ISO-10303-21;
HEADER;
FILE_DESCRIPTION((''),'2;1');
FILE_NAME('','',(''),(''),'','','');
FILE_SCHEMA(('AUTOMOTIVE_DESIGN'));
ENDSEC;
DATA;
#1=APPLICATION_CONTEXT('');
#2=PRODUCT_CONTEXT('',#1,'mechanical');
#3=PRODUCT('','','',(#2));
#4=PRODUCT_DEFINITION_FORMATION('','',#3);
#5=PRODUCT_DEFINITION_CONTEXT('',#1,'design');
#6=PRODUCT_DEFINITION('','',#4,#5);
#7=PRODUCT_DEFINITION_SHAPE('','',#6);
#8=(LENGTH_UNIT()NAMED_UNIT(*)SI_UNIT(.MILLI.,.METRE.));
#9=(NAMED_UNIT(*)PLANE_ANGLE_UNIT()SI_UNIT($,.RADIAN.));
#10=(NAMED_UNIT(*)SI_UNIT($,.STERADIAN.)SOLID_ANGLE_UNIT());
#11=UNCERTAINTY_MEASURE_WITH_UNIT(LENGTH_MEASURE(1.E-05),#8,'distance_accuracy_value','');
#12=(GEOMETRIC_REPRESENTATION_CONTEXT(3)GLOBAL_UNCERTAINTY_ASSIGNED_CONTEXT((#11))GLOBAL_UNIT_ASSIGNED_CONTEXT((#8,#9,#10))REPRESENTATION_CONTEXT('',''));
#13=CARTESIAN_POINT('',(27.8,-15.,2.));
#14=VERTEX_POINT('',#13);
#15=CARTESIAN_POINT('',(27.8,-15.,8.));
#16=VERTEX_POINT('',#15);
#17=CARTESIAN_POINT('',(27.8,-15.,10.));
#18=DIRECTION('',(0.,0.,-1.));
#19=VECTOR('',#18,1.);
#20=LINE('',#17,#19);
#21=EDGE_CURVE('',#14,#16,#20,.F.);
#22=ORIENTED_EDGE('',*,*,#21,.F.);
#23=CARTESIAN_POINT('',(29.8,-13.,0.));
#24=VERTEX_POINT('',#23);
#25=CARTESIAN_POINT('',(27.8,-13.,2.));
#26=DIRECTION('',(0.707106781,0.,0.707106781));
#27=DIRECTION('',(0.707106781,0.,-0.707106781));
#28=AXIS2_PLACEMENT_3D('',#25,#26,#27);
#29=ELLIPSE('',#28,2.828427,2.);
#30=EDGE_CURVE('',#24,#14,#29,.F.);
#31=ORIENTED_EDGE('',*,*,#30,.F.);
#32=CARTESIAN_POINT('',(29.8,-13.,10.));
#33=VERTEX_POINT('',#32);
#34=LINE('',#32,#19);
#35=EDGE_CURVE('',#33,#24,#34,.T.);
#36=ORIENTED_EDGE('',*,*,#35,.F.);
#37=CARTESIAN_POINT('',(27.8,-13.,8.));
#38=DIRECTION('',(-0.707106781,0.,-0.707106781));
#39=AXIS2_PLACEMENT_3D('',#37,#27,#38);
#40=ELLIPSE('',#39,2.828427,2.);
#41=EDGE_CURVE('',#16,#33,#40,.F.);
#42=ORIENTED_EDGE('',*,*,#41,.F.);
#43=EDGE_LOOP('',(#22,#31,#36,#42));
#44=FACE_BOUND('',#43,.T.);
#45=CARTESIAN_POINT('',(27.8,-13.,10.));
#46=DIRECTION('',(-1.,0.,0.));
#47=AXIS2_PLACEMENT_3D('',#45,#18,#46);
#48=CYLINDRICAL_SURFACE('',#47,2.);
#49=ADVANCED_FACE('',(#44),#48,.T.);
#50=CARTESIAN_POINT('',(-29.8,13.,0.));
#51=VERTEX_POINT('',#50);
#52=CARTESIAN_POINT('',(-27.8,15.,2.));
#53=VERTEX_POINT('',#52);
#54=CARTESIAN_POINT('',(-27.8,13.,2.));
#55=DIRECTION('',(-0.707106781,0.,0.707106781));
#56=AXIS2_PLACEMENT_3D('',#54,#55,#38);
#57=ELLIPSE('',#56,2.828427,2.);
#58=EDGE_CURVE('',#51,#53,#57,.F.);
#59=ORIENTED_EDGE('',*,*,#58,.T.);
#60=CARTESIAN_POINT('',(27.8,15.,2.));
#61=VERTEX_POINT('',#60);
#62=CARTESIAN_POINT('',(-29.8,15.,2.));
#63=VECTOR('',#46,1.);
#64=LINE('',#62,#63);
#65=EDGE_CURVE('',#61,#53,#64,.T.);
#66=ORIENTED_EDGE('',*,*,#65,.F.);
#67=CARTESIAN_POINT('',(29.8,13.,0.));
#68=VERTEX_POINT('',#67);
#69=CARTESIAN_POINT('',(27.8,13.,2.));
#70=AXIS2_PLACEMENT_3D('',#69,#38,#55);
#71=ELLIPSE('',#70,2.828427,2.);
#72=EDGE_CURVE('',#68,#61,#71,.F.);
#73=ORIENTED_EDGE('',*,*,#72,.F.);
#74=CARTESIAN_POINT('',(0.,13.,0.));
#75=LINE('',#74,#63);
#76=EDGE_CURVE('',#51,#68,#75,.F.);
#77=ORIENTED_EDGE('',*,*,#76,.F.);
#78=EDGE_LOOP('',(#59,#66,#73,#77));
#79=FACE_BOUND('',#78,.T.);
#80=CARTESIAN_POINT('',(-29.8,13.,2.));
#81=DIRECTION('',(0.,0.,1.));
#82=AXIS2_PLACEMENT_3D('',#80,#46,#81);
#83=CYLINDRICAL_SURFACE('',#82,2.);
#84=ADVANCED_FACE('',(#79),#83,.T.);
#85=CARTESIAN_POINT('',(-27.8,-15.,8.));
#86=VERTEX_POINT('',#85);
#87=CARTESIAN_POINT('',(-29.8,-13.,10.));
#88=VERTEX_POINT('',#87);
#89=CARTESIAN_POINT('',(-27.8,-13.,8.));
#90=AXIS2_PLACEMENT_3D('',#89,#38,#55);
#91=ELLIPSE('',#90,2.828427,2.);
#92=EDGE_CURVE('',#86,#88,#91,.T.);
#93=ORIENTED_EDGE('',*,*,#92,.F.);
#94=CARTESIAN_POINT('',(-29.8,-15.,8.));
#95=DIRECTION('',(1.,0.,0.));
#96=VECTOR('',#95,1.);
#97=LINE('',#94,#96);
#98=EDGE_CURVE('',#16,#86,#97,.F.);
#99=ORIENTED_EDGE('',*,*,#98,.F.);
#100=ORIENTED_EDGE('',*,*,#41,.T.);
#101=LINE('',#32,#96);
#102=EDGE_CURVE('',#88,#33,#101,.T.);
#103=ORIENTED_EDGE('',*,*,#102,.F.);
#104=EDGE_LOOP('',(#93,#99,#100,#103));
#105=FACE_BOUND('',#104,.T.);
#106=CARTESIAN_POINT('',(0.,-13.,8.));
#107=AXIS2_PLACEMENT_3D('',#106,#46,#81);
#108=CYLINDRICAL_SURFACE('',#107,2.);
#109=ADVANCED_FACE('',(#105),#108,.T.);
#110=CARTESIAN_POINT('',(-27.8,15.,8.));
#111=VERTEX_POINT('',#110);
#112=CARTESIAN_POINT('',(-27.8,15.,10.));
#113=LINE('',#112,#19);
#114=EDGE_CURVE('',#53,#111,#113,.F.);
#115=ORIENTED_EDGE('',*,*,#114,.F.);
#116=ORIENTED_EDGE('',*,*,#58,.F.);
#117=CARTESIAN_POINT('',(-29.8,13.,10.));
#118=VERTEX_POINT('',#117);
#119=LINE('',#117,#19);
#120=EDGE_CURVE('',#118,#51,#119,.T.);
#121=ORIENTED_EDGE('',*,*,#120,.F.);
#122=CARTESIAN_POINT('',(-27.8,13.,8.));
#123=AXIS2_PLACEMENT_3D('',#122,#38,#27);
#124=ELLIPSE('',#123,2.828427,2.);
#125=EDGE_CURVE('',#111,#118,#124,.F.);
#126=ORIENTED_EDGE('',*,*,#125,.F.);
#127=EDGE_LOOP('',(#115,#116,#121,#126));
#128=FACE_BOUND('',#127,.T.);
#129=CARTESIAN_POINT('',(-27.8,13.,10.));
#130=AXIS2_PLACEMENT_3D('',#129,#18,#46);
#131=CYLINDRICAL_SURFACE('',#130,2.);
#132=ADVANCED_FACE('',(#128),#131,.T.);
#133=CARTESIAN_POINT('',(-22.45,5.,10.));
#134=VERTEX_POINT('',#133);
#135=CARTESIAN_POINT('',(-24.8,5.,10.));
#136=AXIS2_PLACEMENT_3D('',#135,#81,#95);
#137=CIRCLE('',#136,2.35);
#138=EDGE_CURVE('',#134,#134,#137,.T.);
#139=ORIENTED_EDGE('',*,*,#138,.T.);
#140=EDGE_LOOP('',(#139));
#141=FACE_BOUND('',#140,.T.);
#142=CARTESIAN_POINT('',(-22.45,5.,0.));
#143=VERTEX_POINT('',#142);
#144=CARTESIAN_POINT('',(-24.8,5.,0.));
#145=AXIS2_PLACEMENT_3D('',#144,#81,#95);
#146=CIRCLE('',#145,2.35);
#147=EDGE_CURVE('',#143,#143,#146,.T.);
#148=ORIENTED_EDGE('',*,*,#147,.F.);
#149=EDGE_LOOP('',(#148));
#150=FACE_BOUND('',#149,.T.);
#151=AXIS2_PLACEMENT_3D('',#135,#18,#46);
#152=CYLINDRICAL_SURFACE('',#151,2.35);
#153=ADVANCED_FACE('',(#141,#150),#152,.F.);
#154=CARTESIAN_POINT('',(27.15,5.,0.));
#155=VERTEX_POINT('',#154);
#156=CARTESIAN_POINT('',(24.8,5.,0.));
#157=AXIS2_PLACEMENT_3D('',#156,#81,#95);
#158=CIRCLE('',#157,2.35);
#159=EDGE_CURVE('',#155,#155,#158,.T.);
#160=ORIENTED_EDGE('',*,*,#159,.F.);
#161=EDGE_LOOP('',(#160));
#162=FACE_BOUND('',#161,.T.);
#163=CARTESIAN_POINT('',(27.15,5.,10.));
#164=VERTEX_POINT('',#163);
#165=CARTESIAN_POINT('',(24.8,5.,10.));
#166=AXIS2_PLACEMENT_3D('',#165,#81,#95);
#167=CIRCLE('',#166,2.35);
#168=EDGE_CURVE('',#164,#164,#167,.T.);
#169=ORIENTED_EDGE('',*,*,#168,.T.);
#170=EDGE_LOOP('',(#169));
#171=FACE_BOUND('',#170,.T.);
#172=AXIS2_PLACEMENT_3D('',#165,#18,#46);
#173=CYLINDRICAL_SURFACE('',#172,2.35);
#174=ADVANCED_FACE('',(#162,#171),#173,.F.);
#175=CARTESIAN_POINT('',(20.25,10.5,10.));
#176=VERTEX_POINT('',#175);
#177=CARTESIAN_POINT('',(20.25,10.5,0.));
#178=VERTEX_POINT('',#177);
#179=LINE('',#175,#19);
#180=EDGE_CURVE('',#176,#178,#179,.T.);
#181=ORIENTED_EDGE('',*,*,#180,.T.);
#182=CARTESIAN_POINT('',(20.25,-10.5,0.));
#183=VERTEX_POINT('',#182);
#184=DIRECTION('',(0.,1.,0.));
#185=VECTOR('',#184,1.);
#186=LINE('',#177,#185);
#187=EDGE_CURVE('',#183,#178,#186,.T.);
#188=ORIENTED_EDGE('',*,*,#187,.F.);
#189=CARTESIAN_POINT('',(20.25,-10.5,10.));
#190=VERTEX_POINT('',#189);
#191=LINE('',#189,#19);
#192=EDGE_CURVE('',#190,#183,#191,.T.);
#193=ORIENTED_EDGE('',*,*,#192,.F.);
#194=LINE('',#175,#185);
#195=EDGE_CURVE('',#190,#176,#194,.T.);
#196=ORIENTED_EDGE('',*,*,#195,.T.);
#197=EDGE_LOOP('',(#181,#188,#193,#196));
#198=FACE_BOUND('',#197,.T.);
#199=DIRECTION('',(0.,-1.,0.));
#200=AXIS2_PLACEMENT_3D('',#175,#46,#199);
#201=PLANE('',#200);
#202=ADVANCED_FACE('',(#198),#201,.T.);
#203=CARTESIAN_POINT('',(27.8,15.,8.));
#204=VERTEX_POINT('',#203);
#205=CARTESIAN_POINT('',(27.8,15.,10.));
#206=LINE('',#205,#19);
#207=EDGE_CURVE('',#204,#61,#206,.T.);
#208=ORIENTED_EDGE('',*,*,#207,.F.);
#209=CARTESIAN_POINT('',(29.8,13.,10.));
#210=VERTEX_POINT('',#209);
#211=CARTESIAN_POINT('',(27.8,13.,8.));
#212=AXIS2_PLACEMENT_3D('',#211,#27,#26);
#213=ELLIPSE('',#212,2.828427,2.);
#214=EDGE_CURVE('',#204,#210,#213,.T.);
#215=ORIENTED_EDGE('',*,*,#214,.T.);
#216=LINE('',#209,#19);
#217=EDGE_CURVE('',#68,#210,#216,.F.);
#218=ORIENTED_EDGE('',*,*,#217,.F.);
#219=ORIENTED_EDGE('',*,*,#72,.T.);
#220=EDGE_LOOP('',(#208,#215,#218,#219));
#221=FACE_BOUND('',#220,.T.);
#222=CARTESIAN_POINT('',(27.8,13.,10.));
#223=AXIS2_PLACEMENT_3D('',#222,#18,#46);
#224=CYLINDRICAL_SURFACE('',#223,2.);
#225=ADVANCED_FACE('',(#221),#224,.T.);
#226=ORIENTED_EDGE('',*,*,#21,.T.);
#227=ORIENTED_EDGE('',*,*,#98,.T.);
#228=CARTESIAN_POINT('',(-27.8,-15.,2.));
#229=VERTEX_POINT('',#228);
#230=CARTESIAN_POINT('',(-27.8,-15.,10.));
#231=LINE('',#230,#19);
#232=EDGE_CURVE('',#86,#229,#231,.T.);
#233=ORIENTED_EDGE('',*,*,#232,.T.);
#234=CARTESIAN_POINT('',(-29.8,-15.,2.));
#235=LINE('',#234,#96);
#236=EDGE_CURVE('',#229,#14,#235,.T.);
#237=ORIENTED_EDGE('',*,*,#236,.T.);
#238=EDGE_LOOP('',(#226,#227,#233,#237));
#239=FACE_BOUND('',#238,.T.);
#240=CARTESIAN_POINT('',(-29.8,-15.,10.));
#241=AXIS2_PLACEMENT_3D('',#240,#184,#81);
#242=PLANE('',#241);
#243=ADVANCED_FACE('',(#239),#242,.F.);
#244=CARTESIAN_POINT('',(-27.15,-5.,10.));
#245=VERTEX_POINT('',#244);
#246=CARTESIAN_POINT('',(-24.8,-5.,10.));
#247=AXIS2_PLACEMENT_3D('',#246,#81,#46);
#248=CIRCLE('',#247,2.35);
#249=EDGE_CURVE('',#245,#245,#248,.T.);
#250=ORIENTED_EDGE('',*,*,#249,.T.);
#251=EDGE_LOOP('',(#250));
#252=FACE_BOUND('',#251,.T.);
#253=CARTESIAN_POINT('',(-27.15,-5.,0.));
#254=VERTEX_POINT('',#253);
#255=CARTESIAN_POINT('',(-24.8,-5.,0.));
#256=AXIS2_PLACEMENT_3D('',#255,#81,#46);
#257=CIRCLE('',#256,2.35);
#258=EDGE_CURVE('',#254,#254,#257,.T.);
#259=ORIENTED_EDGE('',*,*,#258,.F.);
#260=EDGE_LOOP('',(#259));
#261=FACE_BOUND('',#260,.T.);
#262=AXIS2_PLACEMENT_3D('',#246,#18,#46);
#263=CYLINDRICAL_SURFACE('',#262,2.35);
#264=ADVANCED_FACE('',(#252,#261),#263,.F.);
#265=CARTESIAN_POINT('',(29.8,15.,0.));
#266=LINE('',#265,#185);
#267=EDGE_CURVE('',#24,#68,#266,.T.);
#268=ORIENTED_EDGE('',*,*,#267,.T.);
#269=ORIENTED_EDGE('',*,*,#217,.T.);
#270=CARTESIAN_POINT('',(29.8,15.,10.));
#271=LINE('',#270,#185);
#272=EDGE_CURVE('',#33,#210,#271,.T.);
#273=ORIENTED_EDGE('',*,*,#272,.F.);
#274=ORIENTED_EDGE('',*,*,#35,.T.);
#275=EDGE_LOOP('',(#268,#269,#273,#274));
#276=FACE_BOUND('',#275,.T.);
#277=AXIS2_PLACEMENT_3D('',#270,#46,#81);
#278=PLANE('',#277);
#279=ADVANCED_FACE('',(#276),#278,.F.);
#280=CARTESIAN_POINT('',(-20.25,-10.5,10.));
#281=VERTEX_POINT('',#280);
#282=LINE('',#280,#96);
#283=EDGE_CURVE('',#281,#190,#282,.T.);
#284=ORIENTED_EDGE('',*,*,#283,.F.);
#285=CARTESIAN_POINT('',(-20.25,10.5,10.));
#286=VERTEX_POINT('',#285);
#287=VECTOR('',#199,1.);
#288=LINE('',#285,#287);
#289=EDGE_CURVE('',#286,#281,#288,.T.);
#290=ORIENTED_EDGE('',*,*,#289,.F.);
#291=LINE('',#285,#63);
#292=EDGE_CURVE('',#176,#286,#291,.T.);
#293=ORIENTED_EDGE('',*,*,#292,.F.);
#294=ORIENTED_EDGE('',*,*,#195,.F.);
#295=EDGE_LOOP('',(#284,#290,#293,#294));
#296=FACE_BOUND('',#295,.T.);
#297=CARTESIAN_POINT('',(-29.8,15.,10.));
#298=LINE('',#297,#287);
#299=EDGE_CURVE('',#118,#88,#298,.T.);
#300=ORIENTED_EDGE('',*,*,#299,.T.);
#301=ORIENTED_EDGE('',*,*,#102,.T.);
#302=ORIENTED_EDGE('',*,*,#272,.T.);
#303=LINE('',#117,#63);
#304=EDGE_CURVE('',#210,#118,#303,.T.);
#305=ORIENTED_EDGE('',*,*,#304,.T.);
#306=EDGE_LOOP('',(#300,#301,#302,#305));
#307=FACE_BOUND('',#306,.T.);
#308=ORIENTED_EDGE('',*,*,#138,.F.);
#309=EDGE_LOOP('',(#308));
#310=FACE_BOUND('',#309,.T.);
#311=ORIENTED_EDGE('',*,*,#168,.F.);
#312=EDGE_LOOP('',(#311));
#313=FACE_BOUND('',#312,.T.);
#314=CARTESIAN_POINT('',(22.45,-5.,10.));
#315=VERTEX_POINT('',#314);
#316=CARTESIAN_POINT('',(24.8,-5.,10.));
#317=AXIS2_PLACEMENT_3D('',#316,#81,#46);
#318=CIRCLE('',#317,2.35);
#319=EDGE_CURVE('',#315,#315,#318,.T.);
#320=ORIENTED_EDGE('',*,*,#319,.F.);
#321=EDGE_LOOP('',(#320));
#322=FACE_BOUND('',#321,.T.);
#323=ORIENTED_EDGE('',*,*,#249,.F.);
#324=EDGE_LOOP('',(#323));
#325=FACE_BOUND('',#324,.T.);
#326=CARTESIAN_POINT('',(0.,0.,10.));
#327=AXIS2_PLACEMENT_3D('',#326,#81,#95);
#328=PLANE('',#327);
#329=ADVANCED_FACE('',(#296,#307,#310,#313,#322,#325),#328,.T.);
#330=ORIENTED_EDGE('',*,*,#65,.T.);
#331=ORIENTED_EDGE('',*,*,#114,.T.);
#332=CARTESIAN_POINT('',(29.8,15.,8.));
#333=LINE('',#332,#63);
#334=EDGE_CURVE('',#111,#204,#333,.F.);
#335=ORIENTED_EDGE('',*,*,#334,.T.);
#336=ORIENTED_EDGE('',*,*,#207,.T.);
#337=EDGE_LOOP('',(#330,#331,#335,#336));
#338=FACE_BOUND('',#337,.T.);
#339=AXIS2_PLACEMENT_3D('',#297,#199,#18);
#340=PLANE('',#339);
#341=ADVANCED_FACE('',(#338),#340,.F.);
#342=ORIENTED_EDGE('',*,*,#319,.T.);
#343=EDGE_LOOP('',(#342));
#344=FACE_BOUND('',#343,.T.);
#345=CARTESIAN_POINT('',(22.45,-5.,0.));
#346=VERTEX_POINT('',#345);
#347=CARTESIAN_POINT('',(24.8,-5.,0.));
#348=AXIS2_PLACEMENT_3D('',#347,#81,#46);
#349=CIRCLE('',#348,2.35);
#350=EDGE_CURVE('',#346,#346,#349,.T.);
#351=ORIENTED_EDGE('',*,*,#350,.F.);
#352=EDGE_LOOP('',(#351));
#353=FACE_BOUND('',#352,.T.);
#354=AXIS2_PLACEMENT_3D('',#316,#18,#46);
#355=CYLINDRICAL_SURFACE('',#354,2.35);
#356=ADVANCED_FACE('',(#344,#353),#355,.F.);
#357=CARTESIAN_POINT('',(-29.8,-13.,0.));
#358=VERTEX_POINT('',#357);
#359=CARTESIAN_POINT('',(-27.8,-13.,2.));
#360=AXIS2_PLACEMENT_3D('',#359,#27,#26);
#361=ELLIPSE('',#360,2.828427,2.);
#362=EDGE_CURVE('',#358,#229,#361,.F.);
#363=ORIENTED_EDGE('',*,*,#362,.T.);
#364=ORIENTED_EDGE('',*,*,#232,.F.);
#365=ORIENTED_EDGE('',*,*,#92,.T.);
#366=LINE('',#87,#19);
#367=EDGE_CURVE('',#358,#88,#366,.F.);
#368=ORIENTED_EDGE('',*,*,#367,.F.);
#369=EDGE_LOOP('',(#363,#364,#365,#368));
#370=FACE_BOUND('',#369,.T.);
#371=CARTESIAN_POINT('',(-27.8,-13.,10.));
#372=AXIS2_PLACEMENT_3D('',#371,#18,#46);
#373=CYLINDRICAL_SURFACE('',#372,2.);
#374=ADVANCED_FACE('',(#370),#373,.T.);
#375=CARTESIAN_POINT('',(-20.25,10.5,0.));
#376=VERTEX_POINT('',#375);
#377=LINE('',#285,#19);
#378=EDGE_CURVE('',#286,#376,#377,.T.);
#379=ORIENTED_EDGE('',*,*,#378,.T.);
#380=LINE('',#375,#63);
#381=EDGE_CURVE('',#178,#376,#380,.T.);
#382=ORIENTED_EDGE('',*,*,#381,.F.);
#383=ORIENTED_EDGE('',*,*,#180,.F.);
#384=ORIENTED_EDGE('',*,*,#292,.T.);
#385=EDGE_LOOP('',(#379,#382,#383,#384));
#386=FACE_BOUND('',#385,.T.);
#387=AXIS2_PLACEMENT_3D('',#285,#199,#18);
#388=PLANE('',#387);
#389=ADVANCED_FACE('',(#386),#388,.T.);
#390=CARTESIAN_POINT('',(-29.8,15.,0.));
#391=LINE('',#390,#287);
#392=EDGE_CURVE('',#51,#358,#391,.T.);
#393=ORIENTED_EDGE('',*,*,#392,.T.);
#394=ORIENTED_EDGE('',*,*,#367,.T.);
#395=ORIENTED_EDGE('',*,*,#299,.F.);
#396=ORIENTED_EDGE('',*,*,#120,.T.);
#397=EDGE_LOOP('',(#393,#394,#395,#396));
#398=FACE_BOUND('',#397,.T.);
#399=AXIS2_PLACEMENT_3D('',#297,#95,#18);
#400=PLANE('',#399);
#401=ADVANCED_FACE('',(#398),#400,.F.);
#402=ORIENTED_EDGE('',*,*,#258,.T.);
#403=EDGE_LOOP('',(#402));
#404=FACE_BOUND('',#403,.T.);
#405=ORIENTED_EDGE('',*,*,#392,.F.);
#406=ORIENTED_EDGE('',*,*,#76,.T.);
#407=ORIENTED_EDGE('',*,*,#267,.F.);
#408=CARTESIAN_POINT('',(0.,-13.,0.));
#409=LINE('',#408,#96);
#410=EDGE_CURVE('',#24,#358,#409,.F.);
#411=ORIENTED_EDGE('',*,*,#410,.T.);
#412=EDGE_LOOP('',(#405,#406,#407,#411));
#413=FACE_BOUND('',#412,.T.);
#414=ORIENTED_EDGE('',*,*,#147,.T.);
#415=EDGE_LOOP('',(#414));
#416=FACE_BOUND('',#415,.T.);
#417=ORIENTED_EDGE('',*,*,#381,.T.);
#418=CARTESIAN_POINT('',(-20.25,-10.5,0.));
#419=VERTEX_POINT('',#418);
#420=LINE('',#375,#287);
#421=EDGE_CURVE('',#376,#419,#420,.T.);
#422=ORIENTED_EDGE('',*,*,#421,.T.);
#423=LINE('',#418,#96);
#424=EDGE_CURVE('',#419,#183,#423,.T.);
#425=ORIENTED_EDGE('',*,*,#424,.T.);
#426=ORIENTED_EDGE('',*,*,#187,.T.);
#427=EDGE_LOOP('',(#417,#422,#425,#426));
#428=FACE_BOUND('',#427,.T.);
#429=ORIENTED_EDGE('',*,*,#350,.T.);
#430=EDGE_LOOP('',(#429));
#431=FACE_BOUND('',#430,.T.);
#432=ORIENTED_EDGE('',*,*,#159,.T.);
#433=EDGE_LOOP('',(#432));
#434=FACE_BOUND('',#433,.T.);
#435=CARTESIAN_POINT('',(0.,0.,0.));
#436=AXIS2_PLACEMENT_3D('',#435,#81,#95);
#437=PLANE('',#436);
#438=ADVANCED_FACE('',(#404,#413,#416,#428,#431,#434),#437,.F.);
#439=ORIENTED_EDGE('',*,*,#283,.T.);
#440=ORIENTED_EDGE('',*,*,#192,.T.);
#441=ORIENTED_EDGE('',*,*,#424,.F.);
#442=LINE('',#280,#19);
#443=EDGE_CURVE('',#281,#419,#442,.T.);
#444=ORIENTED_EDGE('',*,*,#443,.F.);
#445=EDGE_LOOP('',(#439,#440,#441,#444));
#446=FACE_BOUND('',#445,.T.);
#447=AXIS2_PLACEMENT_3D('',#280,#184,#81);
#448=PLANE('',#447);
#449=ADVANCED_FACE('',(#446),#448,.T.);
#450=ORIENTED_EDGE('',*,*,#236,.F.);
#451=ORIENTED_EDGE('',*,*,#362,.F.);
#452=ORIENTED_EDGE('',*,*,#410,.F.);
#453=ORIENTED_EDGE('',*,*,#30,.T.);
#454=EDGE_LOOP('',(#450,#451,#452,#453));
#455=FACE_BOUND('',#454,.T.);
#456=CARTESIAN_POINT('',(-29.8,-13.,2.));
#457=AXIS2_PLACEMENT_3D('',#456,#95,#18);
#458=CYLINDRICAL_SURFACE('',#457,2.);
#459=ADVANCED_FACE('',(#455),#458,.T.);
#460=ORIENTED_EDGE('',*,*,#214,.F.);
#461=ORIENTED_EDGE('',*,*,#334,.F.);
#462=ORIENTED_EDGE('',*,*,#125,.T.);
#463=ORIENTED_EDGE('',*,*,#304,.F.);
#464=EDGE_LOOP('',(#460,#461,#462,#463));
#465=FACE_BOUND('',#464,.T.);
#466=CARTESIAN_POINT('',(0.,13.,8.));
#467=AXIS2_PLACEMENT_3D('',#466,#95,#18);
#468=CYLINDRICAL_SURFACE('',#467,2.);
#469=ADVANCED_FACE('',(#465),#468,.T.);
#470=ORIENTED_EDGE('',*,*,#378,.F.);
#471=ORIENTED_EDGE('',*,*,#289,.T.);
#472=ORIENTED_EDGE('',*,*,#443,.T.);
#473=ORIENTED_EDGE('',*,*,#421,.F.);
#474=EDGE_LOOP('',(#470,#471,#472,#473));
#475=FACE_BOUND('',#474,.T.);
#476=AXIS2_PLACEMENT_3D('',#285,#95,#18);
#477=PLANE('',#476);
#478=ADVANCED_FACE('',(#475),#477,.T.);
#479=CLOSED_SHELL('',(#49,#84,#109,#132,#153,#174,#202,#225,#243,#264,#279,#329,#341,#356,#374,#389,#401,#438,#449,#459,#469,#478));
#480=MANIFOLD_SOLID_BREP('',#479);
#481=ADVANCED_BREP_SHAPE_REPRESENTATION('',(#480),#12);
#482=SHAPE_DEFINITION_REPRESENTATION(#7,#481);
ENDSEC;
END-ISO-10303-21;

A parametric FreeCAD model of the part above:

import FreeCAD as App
import Part
import Sketcher
from FreeCAD import Vector
Q = App.Units.Quantity


def edges_at(feature, points):
    """Names of the edges that pass closest to the given points."""
    edges = feature.Shape.Edges
    near = lambda p: min(range(len(edges)), key=lambda i: edges[i].distToShape(Part.Vertex(*p))[0])
    return sorted({f"Edge{near(p) + 1}" for p in points})


def add_polygon(sketch, points):
    """Adds a closed chain of lines whose ends are joined by coincident constraints."""
    first, n = sketch.GeometryCount, len(points)
    for a, b in zip(points, points[1:] + points[:1]):
        sketch.addGeometry(Part.LineSegment(App.Vector(*a, 0), App.Vector(*b, 0)), False)
    for i in range(n):
        sketch.addConstraint(Sketcher.Constraint("Coincident", first + i, 2, first + (i + 1) % n, 1))

doc = App.newDocument("Part")
body = doc.addObject("PartDesign::Body", "Body")

# Sketch on XY plane
sketch1 = body.newObject("Sketcher::SketchObject", "Sketch")
sketch1.AttachmentSupport = (doc.getObject("XY_Plane"), [""])
sketch1.MapMode = "FlatFace"
add_polygon(sketch1, [(-29.8, 15), (-29.8, -15), (29.8, -15), (29.8, 15)])  # lines 0-3
sketch1.addGeometry(Part.Circle(Vector(-24.8, -5, 0), Vector(0, 0, 1), 2.4), False)  # 4
sketch1.addGeometry(Part.Circle(Vector(24.8, -5, 0), Vector(0, 0, 1), 2.4), False)  # 5
sketch1.addGeometry(Part.Circle(Vector(-24.8, 5, 0), Vector(0, 0, 1), 2.4), False)  # 6
add_polygon(sketch1, [(20.2, -10.5), (-20.2, -10.5), (-20.2, 10.5), (20.2, 10.5)])  # lines 7-10
sketch1.addGeometry(Part.Circle(Vector(24.8, 5, 0), Vector(0, 0, 1), 2.4), False)  # 11
sketch1.addConstraint([
    Sketcher.Constraint("Vertical", 0),
    Sketcher.Constraint("Horizontal", 1),
    Sketcher.Constraint("Vertical", 2),
    Sketcher.Constraint("Horizontal", 3),
    Sketcher.Constraint("Horizontal", 7),
    Sketcher.Constraint("Vertical", 8),
    Sketcher.Constraint("Horizontal", 9),
    Sketcher.Constraint("Vertical", 10),
    Sketcher.Constraint("Equal", 4, 5),
    Sketcher.Constraint("Equal", 5, 6),
    Sketcher.Constraint("Equal", 6, 11),
    Sketcher.Constraint("Symmetric", 5, 3, 6, 3, -1, 1),
    Sketcher.Constraint("Symmetric", 4, 3, 11, 3, -1, 1),
    Sketcher.Constraint("Symmetric", 0, 2, 2, 2, -1, 1),
    Sketcher.Constraint("Symmetric", 7, 2, 9, 2, -1, 1),
    Sketcher.Constraint("Symmetric", 4, 3, 5, 3, -2),
    Sketcher.Constraint("Diameter", 4, Q("4.7 mm")),
    Sketcher.Constraint("DistanceY", 0, 2, 0, 1, Q("30 mm")),
    Sketcher.Constraint("DistanceY", 8, 1, 8, 2, Q("21 mm")),
    Sketcher.Constraint("DistanceX", 1, 1, 1, 2, Q("59.6 mm")),
    Sketcher.Constraint("DistanceX", 7, 2, 7, 1, Q("40.5 mm")),
    Sketcher.Constraint("DistanceY", 4, 3, -1, 1, Q("5 mm")),
    Sketcher.Constraint("DistanceX", 0, 2, 4, 3, Q("5 mm")),
])
pad1 = body.newObject("PartDesign::Pad", "Pad")
pad1.Profile = sketch1
pad1.Length = 10
doc.recompute()

fillet = body.newObject("PartDesign::Fillet", "Fillet")
fillet.Base = (pad1, edges_at(pad1, [
    (0, 15, 10),
    (0, 15, 0),
    (0, -15, 0),
    (-29.8, 15, 5),
    (29.8, 15, 5),
    (29.8, -15, 5),
    (-29.8, -15, 5),
    (0, -15, 10),
]))
fillet.Radius = 2

doc.recompute()
